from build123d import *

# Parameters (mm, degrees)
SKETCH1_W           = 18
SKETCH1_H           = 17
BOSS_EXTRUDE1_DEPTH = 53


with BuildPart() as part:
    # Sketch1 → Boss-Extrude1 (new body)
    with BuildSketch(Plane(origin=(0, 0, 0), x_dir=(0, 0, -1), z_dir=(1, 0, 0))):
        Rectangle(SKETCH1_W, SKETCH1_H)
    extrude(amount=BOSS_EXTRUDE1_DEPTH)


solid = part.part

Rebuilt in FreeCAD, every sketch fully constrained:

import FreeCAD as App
import Part
import Sketcher
Q = App.Units.Quantity


def add_polygon(sketch, points):
    """Adds a closed chain of lines whose ends are joined by coincident constraints."""
    first, n = sketch.GeometryCount, len(points)
    for a, b in zip(points, points[1:] + points[:1]):
        sketch.addGeometry(Part.LineSegment(App.Vector(*a, 0), App.Vector(*b, 0)), False)
    for i in range(n):
        sketch.addConstraint(Sketcher.Constraint("Coincident", first + i, 2, first + (i + 1) % n, 1))

doc = App.newDocument("Part")
body = doc.addObject("PartDesign::Body", "Body")

# Sketch on YZ plane
sketch1 = doc.addObject("Sketcher::SketchObject", "Sketch")
body.addObject(sketch1)
sketch1.AttachmentSupport = (doc.YZ_Plane, [""])
sketch1.MapMode = "FlatFace"
add_polygon(sketch1, [(8, 9), (-8, 9), (-8, -9), (8, -9)])  # lines 0-3
sketch1.addConstraint([
    Sketcher.Constraint("Horizontal", 0),
    Sketcher.Constraint("Vertical", 1),
    Sketcher.Constraint("Horizontal", 2),
    Sketcher.Constraint("Vertical", 3),
    Sketcher.Constraint("Symmetric", 0, 2, 2, 2, -1, 1),
    Sketcher.Constraint("DistanceX", 0, 2, 0, 1, Q("17 mm")),
    Sketcher.Constraint("DistanceY", 1, 2, 1, 1, Q("18 mm")),
])
pad1 = doc.addObject("PartDesign::Pad", "Pad")
body.addObject(pad1)
pad1.Profile = sketch1
pad1.Length = 53

doc.recompute()
